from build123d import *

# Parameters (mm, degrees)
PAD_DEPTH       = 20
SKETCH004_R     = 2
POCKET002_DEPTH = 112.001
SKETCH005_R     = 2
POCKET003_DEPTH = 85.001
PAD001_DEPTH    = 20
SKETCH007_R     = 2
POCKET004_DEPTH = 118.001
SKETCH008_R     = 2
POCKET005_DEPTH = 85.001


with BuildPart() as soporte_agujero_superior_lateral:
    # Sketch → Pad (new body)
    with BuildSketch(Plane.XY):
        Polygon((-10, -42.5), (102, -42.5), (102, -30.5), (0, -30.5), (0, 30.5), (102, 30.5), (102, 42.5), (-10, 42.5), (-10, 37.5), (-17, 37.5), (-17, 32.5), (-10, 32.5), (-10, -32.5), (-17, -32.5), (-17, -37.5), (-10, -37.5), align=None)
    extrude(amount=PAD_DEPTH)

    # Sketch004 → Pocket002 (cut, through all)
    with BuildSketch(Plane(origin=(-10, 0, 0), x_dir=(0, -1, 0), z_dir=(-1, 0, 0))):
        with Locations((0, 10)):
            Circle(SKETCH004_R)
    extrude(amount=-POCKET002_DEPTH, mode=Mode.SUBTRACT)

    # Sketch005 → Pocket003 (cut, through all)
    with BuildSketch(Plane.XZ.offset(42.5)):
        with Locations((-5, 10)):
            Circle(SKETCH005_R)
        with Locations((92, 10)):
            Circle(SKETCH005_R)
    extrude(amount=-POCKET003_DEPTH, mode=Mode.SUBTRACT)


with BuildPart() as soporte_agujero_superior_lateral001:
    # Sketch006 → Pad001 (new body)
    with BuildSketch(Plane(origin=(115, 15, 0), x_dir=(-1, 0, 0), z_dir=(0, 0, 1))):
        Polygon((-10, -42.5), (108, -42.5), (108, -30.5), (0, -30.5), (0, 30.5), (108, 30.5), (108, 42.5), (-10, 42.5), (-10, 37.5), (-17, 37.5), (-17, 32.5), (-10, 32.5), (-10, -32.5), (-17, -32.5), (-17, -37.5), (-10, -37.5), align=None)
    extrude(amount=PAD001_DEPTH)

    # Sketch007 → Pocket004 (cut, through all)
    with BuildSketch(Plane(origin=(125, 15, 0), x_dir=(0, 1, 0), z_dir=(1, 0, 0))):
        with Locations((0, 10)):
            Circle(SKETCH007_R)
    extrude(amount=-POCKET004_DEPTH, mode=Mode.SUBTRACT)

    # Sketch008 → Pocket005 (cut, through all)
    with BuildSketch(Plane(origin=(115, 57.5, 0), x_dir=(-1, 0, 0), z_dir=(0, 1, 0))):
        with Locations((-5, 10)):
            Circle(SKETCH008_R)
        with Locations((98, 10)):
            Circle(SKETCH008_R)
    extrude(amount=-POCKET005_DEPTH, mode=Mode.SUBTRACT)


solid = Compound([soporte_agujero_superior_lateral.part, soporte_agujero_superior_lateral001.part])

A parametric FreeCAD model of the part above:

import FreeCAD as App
import Part
import Sketcher
Q = App.Units.Quantity


def add_polygon(sketch, points):
    """Adds a closed chain of lines whose ends are joined by coincident constraints."""
    first, n = sketch.GeometryCount, len(points)
    for a, b in zip(points, points[1:] + points[:1]):
        sketch.addGeometry(Part.LineSegment(App.Vector(*a, 0), App.Vector(*b, 0)), False)
    for i in range(n):
        sketch.addConstraint(Sketcher.Constraint("Coincident", first + i, 2, first + (i + 1) % n, 1))

doc = App.newDocument("Part")
body = doc.addObject("PartDesign::Body", "Body")

# Sketch on XY plane
sketch1 = body.newObject("Sketcher::SketchObject", "Sketch")
sketch1.AttachmentSupport = (doc.getObject("XY_Plane"), [""])
sketch1.MapMode = "FlatFace"
add_polygon(sketch1, [(-10, -42), (102, -42), (102, -30), (0, -30), (0, 30), (102, 30), (102, 42), (-10, 42), (-10, 38), (-17, 38), (-17, 32), (-10, 32), (-10, -32), (-17, -32), (-17, -38), (-10, -38)])  # lines 0-15
sketch1.addConstraint([
    Sketcher.Constraint("Horizontal", 0),
    Sketcher.Constraint("Vertical", 1),
    Sketcher.Constraint("Horizontal", 2),
    Sketcher.Constraint("Vertical", 3),
    Sketcher.Constraint("Horizontal", 4),
    Sketcher.Constraint("Vertical", 5),
    Sketcher.Constraint("Horizontal", 6),
    Sketcher.Constraint("Vertical", 7),
    Sketcher.Constraint("Horizontal", 8),
    Sketcher.Constraint("Vertical", 9),
    Sketcher.Constraint("Horizontal", 10),
    Sketcher.Constraint("Vertical", 11),
    Sketcher.Constraint("Horizontal", 12),
    Sketcher.Constraint("Vertical", 13),
    Sketcher.Constraint("Horizontal", 14),
    Sketcher.Constraint("Vertical", 15),
    Sketcher.Constraint("Symmetric", 2, 2, 3, 2, -1, 1),
    Sketcher.Constraint("Symmetric", 0, 2, 5, 2, -1),
    Sketcher.Constraint("Symmetric", 9, 2, 12, 2, -1),
    Sketcher.Constraint("Symmetric", 7, 2, 14, 2, -1),
    Sketcher.Constraint("Vertical", 7, 2, 10, 2),
    Sketcher.Constraint("Equal", 7, 9),
    Sketcher.Constraint("DistanceX", 0, 1, 0, 2, Q("112 mm")),
    Sketcher.Constraint("DistanceX", 2, 2, 2, 1, Q("102 mm")),
    Sketcher.Constraint("DistanceX", 8, 2, 8, 1, Q("7 mm")),
    Sketcher.Constraint("DistanceY", 1, 1, 1, 2, Q("12 mm")),
    Sketcher.Constraint("DistanceY", 3, 1, 3, 2, Q("61 mm")),
    Sketcher.Constraint("DistanceY", 7, 2, 7, 1, Q("5 mm")),
])
pad1 = body.newObject("PartDesign::Pad", "Pad")
pad1.Profile = sketch1
pad1.Length = 20

# Sketch on YZ plane
sketch2 = body.newObject("Sketcher::SketchObject", "Sketch001")
sketch2.AttachmentSupport = (doc.getObject("YZ_Plane"), [""])
sketch2.MapMode = "FlatFace"
sketch2.AttachmentOffset = App.Placement(App.Vector(0, 0, -10), App.Rotation())
sketch2.addGeometry(Part.Circle(App.Vector(0, 10, 0), App.Vector(0, 0, 1), 2), False)
sketch2.addConstraint([
    Sketcher.Constraint("PointOnObject", 0, 3, -2),
    Sketcher.Constraint("Diameter", 0, Q("4 mm")),
    Sketcher.Constraint("DistanceY", -1, 1, 0, 3, Q("10 mm")),
])
pocket1 = body.newObject("PartDesign::Pocket", "Pocket")
pocket1.Profile = sketch2
pocket1.Type = "ThroughAll"
pocket1.Reversed = True

# Sketch on XZ plane
sketch3 = body.newObject("Sketcher::SketchObject", "Sketch002")
sketch3.AttachmentSupport = (doc.getObject("XZ_Plane"), [""])
sketch3.MapMode = "FlatFace"
sketch3.AttachmentOffset = App.Placement(App.Vector(0, 0, 42.5), App.Rotation())
sketch3.addGeometry([
    Part.Circle(App.Vector(-5, 10, 0), App.Vector(0, 0, 1), 2),
    Part.Circle(App.Vector(92, 10, 0), App.Vector(0, 0, 1), 2),
], False)
sketch3.addConstraint([
    Sketcher.Constraint("Equal", 0, 1),
    Sketcher.Constraint("Horizontal", 0, 3, 1, 3),
    Sketcher.Constraint("Diameter", 0, Q("4 mm")),
    Sketcher.Constraint("DistanceX", 0, 3, -1, 1, Q("5 mm")),
    Sketcher.Constraint("DistanceY", -1, 1, 0, 3, Q("10 mm")),
    Sketcher.Constraint("DistanceX", -1, 1, 1, 3, Q("92 mm")),
])
pocket2 = body.newObject("PartDesign::Pocket", "Pocket001")
pocket2.Profile = sketch3
pocket2.Type = "ThroughAll"
body2 = doc.addObject("PartDesign::Body", "Body001")

# Sketch on XY plane
sketch4 = body2.newObject("Sketcher::SketchObject", "Sketch003")
sketch4.AttachmentSupport = (doc.getObject("XY_Plane001"), [""])
sketch4.MapMode = "FlatFace"
add_polygon(sketch4, [(125, 58), (7, 58), (7, 46), (115, 46), (115, -16), (7, -16), (7, -28), (125, -28), (125, -22), (132, -22), (132, -18), (125, -18), (125, 48), (132, 48), (132, 52), (125, 52)])  # lines 0-15
sketch4.addConstraint([
    Sketcher.Constraint("Horizontal", 0),
    Sketcher.Constraint("Vertical", 1),
    Sketcher.Constraint("Horizontal", 2),
    Sketcher.Constraint("Vertical", 3),
    Sketcher.Constraint("Horizontal", 4),
    Sketcher.Constraint("Vertical", 5),
    Sketcher.Constraint("Horizontal", 6),
    Sketcher.Constraint("Vertical", 7),
    Sketcher.Constraint("Horizontal", 8),
    Sketcher.Constraint("Vertical", 9),
    Sketcher.Constraint("Horizontal", 10),
    Sketcher.Constraint("Vertical", 11),
    Sketcher.Constraint("Horizontal", 12),
    Sketcher.Constraint("Vertical", 13),
    Sketcher.Constraint("Horizontal", 14),
    Sketcher.Constraint("Vertical", 15),
    Sketcher.Constraint("Vertical", 1, 2, 4, 2),
    Sketcher.Constraint("Vertical", 7, 2, 10, 2),
    Sketcher.Constraint("Vertical", 9, 2, 12, 2),
    Sketcher.Constraint("Vertical", 11, 2, 14, 2),
    Sketcher.Constraint("Equal", 1, 5),
    Sketcher.Constraint("Equal", 7, 9),
    Sketcher.Constraint("Equal", 9, 13),
    Sketcher.Constraint("Equal", 13, 15),
    Sketcher.Constraint("DistanceX", 0, 2, 0, 1, Q("118 mm")),
    Sketcher.Constraint("DistanceX", 2, 1, 2, 2, Q("108 mm")),
    Sketcher.Constraint("DistanceX", 8, 1, 8, 2, Q("7 mm")),
    Sketcher.Constraint("DistanceY", 1, 2, 1, 1, Q("12 mm")),
    Sketcher.Constraint("DistanceY", 3, 2, 3, 1, Q("61 mm")),
    Sketcher.Constraint("DistanceY", 7, 1, 7, 2, Q("5 mm")),
    Sketcher.Constraint("DistanceX", -1, 1, 0, 2, Q("7 mm")),
    Sketcher.Constraint("DistanceY", -1, 1, 0, 2, Q("57.5 mm")),
])
pad2 = body2.newObject("PartDesign::Pad", "Pad001")
pad2.Profile = sketch4
pad2.Length = 20

# Sketch on YZ plane
sketch5 = body2.newObject("Sketcher::SketchObject", "Sketch004")
sketch5.AttachmentSupport = (doc.getObject("YZ_Plane001"), [""])
sketch5.MapMode = "FlatFace"
sketch5.AttachmentOffset = App.Placement(App.Vector(0, 0, 125), App.Rotation())
sketch5.addGeometry(Part.Circle(App.Vector(15, 10, 0), App.Vector(0, 0, 1), 2), False)
sketch5.addConstraint([
    Sketcher.Constraint("Diameter", 0, Q("4 mm")),
    Sketcher.Constraint("DistanceX", -1, 1, 0, 3, Q("15 mm")),
    Sketcher.Constraint("DistanceY", -1, 1, 0, 3, Q("10 mm")),
])
pocket3 = body2.newObject("PartDesign::Pocket", "Pocket002")
pocket3.Profile = sketch5
pocket3.Type = "ThroughAll"

# Sketch on XZ plane
sketch6 = body2.newObject("Sketcher::SketchObject", "Sketch005")
sketch6.AttachmentSupport = (doc.getObject("XZ_Plane001"), [""])
sketch6.MapMode = "FlatFace"
sketch6.AttachmentOffset = App.Placement(App.Vector(0, 0, -57.5), App.Rotation())
sketch6.addGeometry([
    Part.Circle(App.Vector(120, 10, 0), App.Vector(0, 0, 1), 2),
    Part.Circle(App.Vector(17, 10, 0), App.Vector(0, 0, 1), 2),
], False)
sketch6.addConstraint([
    Sketcher.Constraint("Equal", 0, 1),
    Sketcher.Constraint("Horizontal", 0, 3, 1, 3),
    Sketcher.Constraint("Diameter", 0, Q("4 mm")),
    Sketcher.Constraint("DistanceX", -1, 1, 0, 3, Q("120 mm")),
    Sketcher.Constraint("DistanceY", -1, 1, 0, 3, Q("10 mm")),
    Sketcher.Constraint("DistanceX", -1, 1, 1, 3, Q("17 mm")),
])
pocket4 = body2.newObject("PartDesign::Pocket", "Pocket003")
pocket4.Profile = sketch6
pocket4.Type = "ThroughAll"
pocket4.Reversed = True

doc.recompute()
